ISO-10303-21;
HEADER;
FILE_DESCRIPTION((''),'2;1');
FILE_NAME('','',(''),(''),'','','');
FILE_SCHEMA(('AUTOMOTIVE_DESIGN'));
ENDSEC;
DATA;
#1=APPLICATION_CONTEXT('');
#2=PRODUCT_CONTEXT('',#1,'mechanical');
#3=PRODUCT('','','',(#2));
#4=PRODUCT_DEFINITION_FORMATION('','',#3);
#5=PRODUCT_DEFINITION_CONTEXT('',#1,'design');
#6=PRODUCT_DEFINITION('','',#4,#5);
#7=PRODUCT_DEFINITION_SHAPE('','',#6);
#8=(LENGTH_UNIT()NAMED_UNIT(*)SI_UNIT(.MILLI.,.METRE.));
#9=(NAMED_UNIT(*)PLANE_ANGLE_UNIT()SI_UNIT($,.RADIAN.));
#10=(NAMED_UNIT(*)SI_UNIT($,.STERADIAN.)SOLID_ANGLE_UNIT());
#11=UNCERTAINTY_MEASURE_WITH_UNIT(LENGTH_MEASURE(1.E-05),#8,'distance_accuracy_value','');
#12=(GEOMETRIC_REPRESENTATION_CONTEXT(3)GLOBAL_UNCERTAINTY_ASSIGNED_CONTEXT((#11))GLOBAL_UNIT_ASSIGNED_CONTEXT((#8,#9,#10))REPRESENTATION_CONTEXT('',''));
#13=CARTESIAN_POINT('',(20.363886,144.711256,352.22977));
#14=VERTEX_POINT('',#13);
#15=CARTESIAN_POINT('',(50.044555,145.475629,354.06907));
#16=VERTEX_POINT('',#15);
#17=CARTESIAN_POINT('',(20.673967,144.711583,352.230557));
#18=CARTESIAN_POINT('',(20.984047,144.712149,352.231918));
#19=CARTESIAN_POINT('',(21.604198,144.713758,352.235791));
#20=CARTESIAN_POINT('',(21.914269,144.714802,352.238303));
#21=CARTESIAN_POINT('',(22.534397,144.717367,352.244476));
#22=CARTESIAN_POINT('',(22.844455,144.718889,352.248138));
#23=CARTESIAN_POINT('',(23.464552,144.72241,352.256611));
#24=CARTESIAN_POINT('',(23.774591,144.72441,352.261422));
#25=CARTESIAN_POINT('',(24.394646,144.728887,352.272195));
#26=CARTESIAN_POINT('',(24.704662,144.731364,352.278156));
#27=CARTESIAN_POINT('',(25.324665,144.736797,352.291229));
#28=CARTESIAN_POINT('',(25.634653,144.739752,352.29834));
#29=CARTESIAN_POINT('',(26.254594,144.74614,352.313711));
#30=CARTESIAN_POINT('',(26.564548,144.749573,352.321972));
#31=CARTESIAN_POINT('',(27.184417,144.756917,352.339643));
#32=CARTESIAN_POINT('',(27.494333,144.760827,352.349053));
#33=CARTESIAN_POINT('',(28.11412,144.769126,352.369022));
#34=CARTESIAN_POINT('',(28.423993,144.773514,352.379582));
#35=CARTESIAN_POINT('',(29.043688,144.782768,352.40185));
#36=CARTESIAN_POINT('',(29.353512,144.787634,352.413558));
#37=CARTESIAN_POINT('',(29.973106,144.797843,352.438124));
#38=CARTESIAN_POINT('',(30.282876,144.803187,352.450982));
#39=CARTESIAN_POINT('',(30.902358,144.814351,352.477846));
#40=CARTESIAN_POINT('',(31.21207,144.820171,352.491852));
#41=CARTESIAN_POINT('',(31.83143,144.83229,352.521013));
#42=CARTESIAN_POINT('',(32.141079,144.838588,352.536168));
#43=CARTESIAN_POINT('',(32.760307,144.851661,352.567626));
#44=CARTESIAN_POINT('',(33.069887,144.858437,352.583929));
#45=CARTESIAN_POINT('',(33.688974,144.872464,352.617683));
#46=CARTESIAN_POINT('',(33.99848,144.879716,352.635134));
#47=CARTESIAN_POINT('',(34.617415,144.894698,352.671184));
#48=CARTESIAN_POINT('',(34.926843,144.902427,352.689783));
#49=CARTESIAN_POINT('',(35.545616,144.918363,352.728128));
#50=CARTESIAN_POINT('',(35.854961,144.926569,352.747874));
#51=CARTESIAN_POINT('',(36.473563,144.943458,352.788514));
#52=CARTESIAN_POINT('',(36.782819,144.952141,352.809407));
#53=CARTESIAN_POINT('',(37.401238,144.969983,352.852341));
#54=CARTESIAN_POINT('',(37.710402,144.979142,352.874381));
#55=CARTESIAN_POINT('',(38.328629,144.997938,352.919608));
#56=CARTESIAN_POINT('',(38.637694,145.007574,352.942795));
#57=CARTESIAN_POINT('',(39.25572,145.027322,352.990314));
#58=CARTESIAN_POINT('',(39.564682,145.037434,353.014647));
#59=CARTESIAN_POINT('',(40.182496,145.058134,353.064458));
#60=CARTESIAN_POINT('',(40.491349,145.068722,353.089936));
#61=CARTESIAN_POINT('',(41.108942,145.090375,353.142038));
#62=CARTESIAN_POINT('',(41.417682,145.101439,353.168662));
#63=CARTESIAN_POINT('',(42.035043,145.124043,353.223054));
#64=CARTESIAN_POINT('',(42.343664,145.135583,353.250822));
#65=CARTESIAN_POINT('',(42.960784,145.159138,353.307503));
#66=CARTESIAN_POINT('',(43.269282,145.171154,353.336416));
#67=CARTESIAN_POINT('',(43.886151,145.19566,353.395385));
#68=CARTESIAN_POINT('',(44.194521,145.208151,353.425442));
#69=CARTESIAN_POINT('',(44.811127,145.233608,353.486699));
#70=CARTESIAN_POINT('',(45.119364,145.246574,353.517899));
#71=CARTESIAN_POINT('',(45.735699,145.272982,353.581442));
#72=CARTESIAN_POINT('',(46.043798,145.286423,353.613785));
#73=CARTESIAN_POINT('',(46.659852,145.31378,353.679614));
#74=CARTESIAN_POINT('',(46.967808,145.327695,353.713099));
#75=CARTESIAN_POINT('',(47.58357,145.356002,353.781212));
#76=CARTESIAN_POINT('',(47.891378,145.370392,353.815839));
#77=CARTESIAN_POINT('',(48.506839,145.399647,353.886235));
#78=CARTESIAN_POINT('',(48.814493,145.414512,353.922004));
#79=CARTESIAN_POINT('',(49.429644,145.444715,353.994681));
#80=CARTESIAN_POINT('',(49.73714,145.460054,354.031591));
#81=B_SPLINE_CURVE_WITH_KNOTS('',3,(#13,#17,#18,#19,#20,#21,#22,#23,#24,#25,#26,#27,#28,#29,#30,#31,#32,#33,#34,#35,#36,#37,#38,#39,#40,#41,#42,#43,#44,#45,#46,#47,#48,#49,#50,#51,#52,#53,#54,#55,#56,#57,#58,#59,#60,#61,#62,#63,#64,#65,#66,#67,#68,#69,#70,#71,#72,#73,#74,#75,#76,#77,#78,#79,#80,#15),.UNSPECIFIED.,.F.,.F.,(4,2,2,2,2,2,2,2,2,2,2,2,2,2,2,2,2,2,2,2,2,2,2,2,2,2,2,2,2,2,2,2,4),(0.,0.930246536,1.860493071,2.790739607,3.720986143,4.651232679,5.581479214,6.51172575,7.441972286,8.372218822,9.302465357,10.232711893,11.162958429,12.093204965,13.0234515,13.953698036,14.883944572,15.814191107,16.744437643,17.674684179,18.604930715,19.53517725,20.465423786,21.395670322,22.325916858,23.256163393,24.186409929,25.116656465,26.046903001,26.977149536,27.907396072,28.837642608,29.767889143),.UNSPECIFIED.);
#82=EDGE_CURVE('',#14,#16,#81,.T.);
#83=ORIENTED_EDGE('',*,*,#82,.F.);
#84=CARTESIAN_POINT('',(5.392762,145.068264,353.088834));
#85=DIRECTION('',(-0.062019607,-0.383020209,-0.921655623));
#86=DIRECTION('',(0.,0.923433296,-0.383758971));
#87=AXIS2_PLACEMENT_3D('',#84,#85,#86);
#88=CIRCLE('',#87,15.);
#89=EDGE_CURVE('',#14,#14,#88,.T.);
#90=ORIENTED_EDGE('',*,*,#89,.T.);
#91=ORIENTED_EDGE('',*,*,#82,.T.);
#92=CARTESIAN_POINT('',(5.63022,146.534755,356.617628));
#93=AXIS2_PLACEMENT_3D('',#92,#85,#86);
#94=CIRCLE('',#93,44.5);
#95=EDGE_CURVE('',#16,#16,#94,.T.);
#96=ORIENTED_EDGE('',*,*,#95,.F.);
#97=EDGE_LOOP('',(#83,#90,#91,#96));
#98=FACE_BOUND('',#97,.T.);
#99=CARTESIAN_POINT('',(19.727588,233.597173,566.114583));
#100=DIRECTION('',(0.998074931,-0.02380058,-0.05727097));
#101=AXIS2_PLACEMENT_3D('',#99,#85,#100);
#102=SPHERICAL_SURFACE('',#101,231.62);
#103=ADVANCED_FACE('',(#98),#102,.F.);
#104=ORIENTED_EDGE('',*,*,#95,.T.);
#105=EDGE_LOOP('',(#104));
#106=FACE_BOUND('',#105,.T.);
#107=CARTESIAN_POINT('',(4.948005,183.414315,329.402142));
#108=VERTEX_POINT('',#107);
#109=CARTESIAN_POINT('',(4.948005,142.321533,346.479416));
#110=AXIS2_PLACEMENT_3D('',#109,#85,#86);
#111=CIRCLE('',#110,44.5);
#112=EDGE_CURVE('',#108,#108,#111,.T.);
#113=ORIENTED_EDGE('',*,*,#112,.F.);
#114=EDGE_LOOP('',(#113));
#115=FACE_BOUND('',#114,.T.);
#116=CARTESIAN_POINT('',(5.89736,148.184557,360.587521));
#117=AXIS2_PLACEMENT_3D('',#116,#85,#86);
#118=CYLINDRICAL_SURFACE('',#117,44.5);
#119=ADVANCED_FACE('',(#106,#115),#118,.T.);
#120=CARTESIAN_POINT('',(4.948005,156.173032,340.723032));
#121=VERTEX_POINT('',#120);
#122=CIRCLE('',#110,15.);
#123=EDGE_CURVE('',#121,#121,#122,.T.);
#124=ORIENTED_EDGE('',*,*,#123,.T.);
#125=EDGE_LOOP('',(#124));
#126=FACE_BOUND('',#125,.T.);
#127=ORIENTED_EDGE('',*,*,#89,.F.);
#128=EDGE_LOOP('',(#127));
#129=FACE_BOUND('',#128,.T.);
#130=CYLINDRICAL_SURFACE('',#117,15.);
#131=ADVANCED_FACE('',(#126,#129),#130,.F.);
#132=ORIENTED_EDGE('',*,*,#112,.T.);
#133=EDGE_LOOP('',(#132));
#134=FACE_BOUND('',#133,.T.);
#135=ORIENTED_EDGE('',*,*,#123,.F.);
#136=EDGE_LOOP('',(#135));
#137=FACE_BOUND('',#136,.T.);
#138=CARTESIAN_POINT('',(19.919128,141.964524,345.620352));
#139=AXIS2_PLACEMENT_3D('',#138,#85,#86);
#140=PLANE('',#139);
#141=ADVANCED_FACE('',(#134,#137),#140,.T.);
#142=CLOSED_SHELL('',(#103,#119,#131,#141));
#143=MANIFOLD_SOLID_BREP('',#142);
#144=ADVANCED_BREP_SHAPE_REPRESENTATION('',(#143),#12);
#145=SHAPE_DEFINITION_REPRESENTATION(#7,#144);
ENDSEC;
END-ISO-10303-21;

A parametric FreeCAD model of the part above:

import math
import FreeCAD as App
import Part
import Sketcher

doc = App.newDocument("Part")
params = doc.addObject("Spreadsheet::Sheet", "Params")
for row, (alias, value) in enumerate([
    ("sketch1_radius", "231.62 mm"),
    ("sketch1_length", "11 mm"),
    ("sketch1_length2", "29.5 mm"),
    ("revolution_angle", "360 deg"),
], start=1):
    params.set(f"A{row}", alias)
    params.set(f"B{row}", "=" + value)
    params.setAlias(f"B{row}", alias)

body = doc.addObject("PartDesign::Body", "Body")

sketch1 = body.newObject("Sketcher::SketchObject", "Sketch")
sketch1.Placement = App.Placement(App.Vector(0, -1.422219, 0.591043), App.Rotation(App.Vector(1, 0, 0), App.Vector(0, 0.383758971, 0.923433296), App.Vector(0, -0.923433296, 0.383758971), "ZXY"))
sketch1.addGeometry([
    Part.LineSegment(App.Vector(19.919128, 373.6375, 0), App.Vector(49.362339, 371.807922, 0)),
    Part.LineSegment(App.Vector(49.362339, 371.807922, 0), App.Vector(50.044555, 382.786746, 0)),
    Part.ArcOfCircle(Part.Circle(App.Vector(19.727588, 612.414066, 0), App.Vector(0, 0, 1), 231.62), math.radians(-89.842599), math.radians(-82.478919)),
    Part.LineSegment(App.Vector(20.363886, 380.79494, 0), App.Vector(19.919128, 373.6375, 0)),
], False)
sketch1.addGeometry(Part.LineSegment(App.Vector(19.727588, 612.414066, 0), App.Vector(4.948004, 374.567795, 0)), True)
sketch1.addConstraint([
    Sketcher.Constraint("Coincident", 0, 2, 1, 1),
    Sketcher.Constraint("Coincident", 1, 2, 2, 2),
    Sketcher.Constraint("Coincident", 2, 1, 3, 1),
    Sketcher.Constraint("Coincident", 3, 2, 0, 1),
    Sketcher.Constraint("Coincident", 4, 1, 2, 3),
    Sketcher.Constraint("Perpendicular", 0, 1),
    Sketcher.Constraint("Parallel", 1, 3),
    Sketcher.Constraint("Parallel", 3, 4),
    Sketcher.Constraint("Radius", 2, 231.62),
    Sketcher.Constraint("Distance", 1, 11.0),
    Sketcher.Constraint("Distance", 0, 29.5),
    Sketcher.Constraint("DistanceY", -1, 1, 3, 2, 373.6375),
    Sketcher.Constraint("DistanceX", -1, 1, 2, 3, 19.727588),
    Sketcher.Constraint("DistanceX", -1, 1, 0, 2, 49.362339),
    Sketcher.Constraint("DistanceY", -1, 1, 2, 1, 380.79494),
    Sketcher.Constraint("DistanceX", 4, 2, 1, 2, 45.09655),
])
sketch1.setExpression("Constraints[8]", "Params.sketch1_radius")
sketch1.setExpression("Constraints[9]", "Params.sketch1_length")
sketch1.setExpression("Constraints[10]", "Params.sketch1_length2")
revolution = body.newObject("PartDesign::Revolution", "Revolution")
revolution.Profile = sketch1
revolution.ReferenceAxis = (sketch1, ["Axis0"])
revolution.setExpression("Angle", "Params.revolution_angle")

doc.recompute()
